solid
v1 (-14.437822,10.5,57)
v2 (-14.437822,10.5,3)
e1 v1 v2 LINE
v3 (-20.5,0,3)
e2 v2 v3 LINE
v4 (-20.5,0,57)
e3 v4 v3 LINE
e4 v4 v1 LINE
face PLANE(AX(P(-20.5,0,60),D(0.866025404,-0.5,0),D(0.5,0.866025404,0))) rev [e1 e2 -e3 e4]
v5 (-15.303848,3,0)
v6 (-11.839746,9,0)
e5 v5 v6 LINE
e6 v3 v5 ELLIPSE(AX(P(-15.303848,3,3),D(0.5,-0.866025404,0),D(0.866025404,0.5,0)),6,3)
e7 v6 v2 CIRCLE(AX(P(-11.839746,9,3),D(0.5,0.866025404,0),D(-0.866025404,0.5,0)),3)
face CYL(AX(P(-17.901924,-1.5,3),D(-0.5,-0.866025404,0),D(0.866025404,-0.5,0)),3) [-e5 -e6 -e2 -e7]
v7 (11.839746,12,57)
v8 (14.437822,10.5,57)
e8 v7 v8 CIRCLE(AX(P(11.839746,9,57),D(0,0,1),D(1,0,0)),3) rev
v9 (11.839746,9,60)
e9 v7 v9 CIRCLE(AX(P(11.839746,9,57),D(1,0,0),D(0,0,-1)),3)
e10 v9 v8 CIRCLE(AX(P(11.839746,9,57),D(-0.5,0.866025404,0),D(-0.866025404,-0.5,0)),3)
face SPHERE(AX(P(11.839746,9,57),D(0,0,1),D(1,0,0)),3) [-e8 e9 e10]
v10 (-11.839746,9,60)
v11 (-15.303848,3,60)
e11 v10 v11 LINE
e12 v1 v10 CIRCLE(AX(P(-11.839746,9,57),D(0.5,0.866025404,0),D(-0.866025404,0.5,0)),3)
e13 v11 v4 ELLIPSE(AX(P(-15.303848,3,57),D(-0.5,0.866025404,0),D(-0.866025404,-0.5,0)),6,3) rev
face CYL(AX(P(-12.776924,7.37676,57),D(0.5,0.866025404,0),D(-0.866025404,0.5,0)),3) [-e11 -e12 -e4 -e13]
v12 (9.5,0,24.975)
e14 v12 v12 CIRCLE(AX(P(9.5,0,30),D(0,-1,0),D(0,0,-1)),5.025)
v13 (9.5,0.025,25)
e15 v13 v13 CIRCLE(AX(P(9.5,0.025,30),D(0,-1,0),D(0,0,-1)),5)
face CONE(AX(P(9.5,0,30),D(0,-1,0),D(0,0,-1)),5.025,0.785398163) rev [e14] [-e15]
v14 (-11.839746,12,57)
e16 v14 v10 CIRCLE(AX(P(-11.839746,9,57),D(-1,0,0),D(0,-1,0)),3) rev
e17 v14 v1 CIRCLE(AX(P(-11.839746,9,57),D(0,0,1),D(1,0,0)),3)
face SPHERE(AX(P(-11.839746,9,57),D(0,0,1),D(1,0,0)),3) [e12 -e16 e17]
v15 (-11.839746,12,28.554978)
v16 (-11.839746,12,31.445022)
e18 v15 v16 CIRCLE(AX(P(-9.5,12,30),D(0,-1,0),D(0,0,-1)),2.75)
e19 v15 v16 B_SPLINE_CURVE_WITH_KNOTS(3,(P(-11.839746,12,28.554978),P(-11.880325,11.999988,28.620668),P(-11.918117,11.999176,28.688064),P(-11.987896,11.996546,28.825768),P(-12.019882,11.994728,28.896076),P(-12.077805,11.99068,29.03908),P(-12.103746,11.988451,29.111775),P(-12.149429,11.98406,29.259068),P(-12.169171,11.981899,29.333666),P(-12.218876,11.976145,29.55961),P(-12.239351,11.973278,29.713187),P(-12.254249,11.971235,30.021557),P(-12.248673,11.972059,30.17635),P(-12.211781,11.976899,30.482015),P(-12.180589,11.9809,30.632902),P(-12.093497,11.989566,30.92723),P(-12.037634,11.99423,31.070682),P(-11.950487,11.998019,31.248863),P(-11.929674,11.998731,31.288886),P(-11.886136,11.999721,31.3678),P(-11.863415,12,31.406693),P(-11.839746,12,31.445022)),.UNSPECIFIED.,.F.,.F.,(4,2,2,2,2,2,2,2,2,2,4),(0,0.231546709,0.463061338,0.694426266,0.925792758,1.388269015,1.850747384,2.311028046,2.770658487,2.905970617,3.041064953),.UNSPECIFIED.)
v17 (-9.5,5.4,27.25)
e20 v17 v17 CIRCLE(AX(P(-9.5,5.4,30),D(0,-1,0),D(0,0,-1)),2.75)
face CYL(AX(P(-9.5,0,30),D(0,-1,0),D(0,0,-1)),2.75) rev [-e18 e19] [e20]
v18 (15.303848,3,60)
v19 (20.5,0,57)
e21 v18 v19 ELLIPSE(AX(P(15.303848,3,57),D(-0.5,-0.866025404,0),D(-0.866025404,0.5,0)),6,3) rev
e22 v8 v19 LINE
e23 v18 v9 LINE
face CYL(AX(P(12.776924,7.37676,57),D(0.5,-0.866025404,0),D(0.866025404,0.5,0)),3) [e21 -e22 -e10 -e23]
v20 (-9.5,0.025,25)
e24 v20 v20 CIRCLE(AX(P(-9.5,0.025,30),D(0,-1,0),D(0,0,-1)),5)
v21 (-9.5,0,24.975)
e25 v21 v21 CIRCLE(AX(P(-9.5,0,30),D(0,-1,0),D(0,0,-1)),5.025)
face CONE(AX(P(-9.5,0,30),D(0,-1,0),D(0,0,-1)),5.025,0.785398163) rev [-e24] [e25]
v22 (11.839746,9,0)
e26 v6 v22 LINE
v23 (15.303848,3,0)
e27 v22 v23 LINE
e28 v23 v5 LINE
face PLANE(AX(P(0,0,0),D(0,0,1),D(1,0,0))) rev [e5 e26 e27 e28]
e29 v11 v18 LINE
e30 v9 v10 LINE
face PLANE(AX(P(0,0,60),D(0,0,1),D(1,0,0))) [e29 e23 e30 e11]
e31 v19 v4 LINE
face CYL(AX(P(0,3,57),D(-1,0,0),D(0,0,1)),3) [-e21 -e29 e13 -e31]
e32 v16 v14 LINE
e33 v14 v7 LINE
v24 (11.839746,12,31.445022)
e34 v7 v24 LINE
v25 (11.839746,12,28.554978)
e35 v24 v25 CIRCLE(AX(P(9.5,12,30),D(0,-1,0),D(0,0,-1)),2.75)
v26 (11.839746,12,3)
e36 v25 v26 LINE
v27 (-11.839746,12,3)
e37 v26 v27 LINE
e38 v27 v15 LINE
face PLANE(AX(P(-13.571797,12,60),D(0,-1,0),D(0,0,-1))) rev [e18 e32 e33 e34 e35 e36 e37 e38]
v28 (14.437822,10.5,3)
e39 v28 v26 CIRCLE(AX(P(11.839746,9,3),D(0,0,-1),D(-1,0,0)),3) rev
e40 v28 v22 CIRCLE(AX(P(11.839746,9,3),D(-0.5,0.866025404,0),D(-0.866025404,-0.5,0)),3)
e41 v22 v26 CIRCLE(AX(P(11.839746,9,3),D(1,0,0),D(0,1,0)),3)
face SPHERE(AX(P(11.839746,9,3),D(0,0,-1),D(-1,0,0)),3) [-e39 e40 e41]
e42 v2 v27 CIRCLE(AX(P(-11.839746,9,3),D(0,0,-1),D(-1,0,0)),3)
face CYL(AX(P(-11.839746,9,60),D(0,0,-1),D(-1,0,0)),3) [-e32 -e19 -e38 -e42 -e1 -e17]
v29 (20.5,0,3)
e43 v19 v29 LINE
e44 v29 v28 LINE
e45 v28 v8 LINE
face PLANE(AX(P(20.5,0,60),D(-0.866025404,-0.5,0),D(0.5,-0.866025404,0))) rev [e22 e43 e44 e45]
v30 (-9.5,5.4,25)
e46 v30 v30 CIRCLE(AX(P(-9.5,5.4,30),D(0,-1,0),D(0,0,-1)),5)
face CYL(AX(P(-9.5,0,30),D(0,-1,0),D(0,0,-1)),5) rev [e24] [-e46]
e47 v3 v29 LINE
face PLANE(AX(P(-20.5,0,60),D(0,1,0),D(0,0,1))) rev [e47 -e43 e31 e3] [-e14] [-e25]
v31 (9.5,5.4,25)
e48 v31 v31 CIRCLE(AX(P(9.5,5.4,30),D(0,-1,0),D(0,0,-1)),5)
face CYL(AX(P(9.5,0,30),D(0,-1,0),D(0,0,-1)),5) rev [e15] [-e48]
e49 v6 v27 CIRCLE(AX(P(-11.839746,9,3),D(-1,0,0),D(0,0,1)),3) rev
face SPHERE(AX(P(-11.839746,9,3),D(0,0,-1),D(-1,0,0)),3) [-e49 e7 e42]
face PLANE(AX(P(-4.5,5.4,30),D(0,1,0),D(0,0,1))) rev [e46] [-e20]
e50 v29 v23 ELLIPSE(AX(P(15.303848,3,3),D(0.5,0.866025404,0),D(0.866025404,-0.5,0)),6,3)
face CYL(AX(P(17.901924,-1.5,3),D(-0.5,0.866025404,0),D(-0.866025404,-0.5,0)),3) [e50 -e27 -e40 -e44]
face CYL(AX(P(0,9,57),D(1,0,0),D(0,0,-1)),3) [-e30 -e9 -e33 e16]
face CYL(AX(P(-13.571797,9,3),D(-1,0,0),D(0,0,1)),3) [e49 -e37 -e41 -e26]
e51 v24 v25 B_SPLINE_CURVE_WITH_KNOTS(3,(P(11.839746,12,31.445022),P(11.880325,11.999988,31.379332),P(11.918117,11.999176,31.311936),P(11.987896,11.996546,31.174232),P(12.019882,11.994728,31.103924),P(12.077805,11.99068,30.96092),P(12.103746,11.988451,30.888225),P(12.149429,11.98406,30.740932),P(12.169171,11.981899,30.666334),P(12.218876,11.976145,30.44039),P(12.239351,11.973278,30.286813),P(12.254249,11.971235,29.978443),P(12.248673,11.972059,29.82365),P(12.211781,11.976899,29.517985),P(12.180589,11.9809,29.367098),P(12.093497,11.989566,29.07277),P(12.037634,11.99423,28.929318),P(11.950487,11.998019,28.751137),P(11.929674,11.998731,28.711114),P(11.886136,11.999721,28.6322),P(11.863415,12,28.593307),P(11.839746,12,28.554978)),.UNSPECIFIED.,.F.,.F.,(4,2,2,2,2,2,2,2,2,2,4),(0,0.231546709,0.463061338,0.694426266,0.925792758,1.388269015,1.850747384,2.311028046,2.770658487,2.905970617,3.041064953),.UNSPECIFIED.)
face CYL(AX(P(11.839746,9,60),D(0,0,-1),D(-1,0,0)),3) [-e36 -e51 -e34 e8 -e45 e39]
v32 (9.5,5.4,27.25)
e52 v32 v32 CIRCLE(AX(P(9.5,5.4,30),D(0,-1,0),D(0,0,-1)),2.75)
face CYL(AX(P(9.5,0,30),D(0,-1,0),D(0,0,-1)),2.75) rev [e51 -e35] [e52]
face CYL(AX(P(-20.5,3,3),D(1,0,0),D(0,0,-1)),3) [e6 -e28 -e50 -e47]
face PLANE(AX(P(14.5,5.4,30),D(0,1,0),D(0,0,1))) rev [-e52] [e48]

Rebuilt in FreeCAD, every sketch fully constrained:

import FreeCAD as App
import Part
import Sketcher
Q = App.Units.Quantity


def edges_at(feature, points):
    """Names of the edges that pass closest to the given points."""
    edges = feature.Shape.Edges
    near = lambda p: min(range(len(edges)), key=lambda i: edges[i].distToShape(Part.Vertex(*p))[0])
    return sorted({f"Edge{near(p) + 1}" for p in points})


def add_polygon(sketch, points):
    """Adds a closed chain of lines whose ends are joined by coincident constraints."""
    first, n = sketch.GeometryCount, len(points)
    for a, b in zip(points, points[1:] + points[:1]):
        sketch.addGeometry(Part.LineSegment(App.Vector(*a, 0), App.Vector(*b, 0)), False)
    for i in range(n):
        sketch.addConstraint(Sketcher.Constraint("Coincident", first + i, 2, first + (i + 1) % n, 1))

doc = App.newDocument("Part")
body = doc.addObject("PartDesign::Body", "Body")

# Sketch on XY plane
sketch1 = doc.addObject("Sketcher::SketchObject", "Sketch")
body.addObject(sketch1)
sketch1.AttachmentSupport = (doc.XY_Plane, [""])
sketch1.MapMode = "FlatFace"
add_polygon(sketch1, [(-14, 12), (-20, 0), (20, 0), (14, 12)])  # lines 0-3
sketch1.addConstraint([
    Sketcher.Constraint("Horizontal", 1),
    Sketcher.Constraint("Horizontal", 3),
    Sketcher.Constraint("Symmetric", 0, 2, 1, 2, -1, 1),
    Sketcher.Constraint("Equal", 0, 2),
    Sketcher.Constraint("DistanceX", 1, 1, 1, 2, Q("41 mm")),
    Sketcher.Constraint("Angle", 0, Q("-120 deg")),
    Sketcher.Constraint("DistanceY", -1, 1, 2, 2, Q("12 mm")),
])
pad1 = doc.addObject("PartDesign::Pad", "Pad")
body.addObject(pad1)
pad1.Profile = sketch1
pad1.Length = 60
doc.recompute()

fillet = doc.addObject("PartDesign::Fillet", "Fillet")
body.addObject(fillet)
fillet.Base = (pad1, edges_at(pad1, [
    (0, 12, 60),
    (-17.036, 6, 60),
    (0, 0, 60),
    (-17.036, 6, 0),
    (0, 12, 0),
    (17.036, 6, 0),
    (0, 0, 0),
    (-13.572, 12, 30),
    (13.572, 12, 30),
    (17.036, 6, 60),
]))
fillet.Radius = 3

# Sketch on YZ plane
sketch2 = doc.addObject("Sketcher::SketchObject", "Sketch001")
body.addObject(sketch2)
sketch2.AttachmentSupport = (doc.YZ_Plane, [""])
sketch2.MapMode = "FlatFace"
sketch2.AttachmentOffset = App.Placement(App.Vector(0, 0, 9.5), App.Rotation())
add_polygon(sketch2, [(12, 30), (0, 30), (0, 24.975), (0.025, 25), (5.4, 25), (5.4, 27.25), (12, 27.25)])  # lines 0-6
sketch2.addGeometry(Part.LineSegment(App.Vector(0, 30, 0), App.Vector(12, 30, 0)), True)  # axis
sketch2.addConstraint([
    Sketcher.Constraint("Horizontal", 0),
    Sketcher.Constraint("Vertical", 1),
    Sketcher.Constraint("Horizontal", 3),
    Sketcher.Constraint("Vertical", 4),
    Sketcher.Constraint("Horizontal", 5),
    Sketcher.Constraint("Vertical", 6),
    Sketcher.Constraint("Horizontal", 7),
    Sketcher.Constraint("Coincident", 7, 1, 0, 2),
    Sketcher.Constraint("PointOnObject", 0, 2, -2),
    Sketcher.Constraint("Vertical", 5, 2, 7, 2),
    Sketcher.Constraint("DistanceX", 0, 2, 0, 1, Q("12 mm")),
    Sketcher.Constraint("Angle", 2, Q("45 deg")),
    Sketcher.Constraint("DistanceX", 5, 1, 5, 2, Q("6.6 mm")),
    Sketcher.Constraint("DistanceY", -1, 1, 0, 2, Q("30 mm")),
    Sketcher.Constraint("DistanceY", -1, 1, 2, 2, Q("25 mm")),
    Sketcher.Constraint("DistanceY", 4, 1, 4, 2, Q("2.25 mm")),
    Sketcher.Constraint("DistanceX", 3, 1, 3, 2, Q("5.375 mm")),
])
groove = doc.addObject("PartDesign::Groove", "Groove")
body.addObject(groove)
groove.Profile = sketch2
groove.ReferenceAxis = (sketch2, ["Axis0"])
groove.Angle = 360
doc.recompute()

linearpattern = doc.addObject("PartDesign::LinearPattern", "LinearPattern")
body.addObject(linearpattern)
linearpattern.Originals = [groove]
linearpattern.Direction = (doc.X_Axis, [""])
linearpattern.Mode = "offset"
linearpattern.Offset = 19
linearpattern.Occurrences = 2
linearpattern.Reversed = True
body.Tip = linearpattern

doc.recompute()
